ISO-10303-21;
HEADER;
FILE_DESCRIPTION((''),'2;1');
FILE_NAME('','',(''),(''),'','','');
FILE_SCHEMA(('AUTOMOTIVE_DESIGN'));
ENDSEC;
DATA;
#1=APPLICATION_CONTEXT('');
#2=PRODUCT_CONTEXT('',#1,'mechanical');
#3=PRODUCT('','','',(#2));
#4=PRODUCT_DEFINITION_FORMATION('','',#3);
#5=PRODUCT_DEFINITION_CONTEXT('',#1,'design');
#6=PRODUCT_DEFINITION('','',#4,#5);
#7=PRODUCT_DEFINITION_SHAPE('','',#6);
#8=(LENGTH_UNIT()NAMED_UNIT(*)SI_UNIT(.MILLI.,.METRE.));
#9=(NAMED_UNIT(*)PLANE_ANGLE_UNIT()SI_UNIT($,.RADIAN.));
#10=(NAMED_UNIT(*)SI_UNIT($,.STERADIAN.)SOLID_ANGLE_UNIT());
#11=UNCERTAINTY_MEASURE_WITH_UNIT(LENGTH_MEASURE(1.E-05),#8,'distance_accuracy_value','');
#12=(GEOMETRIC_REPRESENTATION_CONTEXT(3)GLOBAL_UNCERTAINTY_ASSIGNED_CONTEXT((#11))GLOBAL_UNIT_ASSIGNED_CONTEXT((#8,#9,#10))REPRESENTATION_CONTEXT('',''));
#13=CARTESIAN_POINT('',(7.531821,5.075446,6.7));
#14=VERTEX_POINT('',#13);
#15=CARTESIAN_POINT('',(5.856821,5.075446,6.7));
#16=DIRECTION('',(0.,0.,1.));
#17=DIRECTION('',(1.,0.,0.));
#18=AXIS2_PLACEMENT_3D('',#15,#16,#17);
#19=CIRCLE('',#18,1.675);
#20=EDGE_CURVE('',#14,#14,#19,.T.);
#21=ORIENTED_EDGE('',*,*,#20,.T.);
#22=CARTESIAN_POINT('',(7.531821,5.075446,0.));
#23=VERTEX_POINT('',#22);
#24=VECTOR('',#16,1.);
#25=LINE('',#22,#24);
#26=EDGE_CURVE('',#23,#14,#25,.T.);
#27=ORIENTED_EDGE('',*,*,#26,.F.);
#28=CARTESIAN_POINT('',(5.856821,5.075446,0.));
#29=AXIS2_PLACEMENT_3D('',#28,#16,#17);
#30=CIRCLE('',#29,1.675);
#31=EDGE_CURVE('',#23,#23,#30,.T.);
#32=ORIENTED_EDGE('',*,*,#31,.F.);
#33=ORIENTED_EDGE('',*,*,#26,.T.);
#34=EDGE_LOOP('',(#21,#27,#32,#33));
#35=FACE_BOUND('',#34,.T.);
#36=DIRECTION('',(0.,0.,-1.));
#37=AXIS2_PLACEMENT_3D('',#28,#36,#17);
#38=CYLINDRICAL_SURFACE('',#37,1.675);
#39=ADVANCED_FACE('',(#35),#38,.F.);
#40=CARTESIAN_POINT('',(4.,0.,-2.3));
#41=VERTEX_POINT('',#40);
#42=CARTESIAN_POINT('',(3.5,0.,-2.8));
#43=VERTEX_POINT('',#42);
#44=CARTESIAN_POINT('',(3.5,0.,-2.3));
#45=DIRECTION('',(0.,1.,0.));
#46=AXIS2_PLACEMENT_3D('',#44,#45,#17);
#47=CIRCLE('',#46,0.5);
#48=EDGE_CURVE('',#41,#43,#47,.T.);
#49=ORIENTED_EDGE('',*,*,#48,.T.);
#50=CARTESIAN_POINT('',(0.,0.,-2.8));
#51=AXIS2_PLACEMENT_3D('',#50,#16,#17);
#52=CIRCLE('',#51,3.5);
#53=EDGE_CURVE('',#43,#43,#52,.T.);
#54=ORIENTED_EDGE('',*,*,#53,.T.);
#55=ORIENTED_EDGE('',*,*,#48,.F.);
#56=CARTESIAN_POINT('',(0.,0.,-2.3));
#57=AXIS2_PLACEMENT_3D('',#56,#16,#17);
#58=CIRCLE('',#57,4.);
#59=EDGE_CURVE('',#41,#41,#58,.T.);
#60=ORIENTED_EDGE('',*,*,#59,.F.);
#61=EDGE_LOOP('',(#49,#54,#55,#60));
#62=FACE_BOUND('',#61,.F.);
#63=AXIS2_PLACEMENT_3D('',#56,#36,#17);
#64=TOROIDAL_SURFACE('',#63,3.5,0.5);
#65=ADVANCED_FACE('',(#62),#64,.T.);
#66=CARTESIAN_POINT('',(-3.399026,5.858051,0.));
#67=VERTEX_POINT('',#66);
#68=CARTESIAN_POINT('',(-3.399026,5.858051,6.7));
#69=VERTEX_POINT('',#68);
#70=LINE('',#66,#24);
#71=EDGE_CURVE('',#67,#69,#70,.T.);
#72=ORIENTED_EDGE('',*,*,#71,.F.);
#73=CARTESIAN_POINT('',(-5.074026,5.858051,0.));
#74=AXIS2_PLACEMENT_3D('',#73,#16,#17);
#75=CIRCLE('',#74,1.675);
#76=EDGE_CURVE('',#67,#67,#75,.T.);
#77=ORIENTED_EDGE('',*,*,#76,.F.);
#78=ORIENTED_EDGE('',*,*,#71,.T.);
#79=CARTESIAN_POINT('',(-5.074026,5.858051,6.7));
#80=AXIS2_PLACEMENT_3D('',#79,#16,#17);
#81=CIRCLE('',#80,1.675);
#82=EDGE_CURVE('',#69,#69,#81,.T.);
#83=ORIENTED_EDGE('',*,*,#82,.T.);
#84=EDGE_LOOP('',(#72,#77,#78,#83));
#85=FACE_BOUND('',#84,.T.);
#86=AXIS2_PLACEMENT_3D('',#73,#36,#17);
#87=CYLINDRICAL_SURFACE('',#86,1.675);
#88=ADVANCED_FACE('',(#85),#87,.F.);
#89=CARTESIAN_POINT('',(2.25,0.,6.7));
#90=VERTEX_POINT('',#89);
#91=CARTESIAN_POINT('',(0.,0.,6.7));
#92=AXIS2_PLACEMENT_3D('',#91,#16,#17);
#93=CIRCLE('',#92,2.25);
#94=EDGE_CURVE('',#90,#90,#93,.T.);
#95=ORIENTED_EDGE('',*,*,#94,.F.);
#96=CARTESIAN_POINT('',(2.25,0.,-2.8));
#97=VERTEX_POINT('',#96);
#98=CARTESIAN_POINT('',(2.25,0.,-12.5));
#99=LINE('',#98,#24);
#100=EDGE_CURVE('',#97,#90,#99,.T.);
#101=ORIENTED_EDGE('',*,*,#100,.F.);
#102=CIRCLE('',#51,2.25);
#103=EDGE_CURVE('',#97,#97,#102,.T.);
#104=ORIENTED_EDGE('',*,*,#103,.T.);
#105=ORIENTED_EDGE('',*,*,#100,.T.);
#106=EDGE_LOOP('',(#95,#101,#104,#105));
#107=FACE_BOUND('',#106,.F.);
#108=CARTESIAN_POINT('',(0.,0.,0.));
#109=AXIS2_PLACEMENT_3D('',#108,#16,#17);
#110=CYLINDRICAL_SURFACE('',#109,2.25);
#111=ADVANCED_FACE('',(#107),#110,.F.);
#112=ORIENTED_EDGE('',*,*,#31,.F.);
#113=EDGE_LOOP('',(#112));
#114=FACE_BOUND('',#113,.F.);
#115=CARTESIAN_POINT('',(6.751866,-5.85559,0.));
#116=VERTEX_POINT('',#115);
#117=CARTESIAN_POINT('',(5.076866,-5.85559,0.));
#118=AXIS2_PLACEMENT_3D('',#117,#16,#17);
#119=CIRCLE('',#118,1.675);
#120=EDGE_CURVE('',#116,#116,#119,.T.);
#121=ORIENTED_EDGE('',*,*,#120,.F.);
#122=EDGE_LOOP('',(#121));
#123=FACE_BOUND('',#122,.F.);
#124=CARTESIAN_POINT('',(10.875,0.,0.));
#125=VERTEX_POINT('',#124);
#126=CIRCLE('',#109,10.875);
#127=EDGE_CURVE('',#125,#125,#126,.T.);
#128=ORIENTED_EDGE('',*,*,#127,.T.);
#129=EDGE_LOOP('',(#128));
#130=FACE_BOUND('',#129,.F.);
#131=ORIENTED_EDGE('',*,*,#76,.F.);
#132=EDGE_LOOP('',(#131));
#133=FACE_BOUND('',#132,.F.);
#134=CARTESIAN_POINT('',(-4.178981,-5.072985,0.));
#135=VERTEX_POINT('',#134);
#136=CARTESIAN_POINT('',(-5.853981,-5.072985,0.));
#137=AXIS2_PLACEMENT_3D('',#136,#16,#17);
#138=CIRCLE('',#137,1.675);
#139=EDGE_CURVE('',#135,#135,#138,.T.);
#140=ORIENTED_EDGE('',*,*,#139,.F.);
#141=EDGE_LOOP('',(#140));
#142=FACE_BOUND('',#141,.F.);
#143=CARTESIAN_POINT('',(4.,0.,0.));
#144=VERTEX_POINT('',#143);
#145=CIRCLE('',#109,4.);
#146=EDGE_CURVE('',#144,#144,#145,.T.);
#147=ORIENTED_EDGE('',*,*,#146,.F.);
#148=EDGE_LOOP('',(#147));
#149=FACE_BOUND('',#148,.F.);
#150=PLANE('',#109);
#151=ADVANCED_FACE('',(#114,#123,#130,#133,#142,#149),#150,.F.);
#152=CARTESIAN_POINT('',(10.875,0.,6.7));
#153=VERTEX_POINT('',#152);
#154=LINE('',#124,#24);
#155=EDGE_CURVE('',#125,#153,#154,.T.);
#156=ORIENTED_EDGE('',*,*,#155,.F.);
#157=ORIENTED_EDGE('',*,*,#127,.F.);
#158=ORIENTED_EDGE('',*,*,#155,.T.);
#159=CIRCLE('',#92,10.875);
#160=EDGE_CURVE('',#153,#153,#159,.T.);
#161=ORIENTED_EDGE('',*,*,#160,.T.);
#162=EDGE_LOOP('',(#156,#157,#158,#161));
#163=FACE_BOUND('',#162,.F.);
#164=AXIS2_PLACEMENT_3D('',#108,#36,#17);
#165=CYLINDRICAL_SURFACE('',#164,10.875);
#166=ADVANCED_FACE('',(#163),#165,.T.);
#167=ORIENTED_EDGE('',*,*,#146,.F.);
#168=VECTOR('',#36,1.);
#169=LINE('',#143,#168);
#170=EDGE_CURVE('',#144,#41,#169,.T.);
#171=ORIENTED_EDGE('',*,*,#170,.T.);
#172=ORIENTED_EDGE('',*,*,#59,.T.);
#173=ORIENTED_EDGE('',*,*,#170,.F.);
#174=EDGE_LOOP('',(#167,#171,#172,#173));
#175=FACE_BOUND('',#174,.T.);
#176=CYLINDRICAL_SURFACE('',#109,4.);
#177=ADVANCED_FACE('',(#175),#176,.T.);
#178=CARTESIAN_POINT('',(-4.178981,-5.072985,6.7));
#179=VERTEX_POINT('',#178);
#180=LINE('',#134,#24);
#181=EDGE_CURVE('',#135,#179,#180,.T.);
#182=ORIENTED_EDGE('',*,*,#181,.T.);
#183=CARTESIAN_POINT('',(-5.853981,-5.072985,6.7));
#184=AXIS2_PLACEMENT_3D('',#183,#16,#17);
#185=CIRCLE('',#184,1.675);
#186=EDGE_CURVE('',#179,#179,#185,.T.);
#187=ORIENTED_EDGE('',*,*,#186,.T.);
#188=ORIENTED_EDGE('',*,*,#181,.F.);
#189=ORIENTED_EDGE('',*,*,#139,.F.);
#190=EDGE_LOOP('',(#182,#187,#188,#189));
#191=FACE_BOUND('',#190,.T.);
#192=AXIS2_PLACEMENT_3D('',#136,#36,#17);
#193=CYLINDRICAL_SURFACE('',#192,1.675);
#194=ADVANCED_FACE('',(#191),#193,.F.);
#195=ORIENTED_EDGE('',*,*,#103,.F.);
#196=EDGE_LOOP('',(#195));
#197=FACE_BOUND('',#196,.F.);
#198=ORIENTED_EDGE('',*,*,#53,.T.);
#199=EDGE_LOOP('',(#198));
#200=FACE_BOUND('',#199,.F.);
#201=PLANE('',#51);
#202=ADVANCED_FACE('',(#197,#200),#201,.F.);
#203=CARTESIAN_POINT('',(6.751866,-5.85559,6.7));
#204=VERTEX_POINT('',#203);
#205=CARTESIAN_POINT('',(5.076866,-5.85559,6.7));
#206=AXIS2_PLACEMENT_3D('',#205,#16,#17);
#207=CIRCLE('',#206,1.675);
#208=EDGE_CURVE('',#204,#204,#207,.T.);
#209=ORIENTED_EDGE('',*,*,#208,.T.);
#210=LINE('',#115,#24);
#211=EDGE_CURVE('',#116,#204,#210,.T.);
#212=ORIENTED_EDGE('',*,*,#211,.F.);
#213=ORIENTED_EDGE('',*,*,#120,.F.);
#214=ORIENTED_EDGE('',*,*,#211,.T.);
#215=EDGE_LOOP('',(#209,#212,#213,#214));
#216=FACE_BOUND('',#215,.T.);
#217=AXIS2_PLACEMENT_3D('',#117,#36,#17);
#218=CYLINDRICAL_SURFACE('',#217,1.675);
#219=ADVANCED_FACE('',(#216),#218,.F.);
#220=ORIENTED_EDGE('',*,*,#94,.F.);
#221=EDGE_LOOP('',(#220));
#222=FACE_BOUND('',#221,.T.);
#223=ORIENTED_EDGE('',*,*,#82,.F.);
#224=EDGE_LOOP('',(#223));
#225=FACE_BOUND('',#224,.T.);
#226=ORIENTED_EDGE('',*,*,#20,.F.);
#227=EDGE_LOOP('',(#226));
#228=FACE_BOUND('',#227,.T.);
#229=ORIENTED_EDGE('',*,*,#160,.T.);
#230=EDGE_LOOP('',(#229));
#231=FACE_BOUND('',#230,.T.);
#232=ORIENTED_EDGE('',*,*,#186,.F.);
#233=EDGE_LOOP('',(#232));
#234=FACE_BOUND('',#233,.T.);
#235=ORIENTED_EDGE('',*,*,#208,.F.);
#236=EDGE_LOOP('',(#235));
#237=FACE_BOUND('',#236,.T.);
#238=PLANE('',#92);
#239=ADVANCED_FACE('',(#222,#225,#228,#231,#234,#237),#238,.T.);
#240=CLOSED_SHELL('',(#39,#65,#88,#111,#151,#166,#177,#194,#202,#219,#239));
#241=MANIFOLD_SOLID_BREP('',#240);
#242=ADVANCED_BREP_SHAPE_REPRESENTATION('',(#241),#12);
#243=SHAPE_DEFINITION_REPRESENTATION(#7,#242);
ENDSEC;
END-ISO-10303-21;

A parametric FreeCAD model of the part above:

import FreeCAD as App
import Part
import Sketcher

V = App.Vector


def edges_at(feature, points):
    """Names of the edges that pass closest to the given points."""
    edges = feature.Shape.Edges
    near = lambda p: min(range(len(edges)), key=lambda i: edges[i].distToShape(Part.Vertex(*p))[0])
    return sorted({f"Edge{near(p) + 1}" for p in points})

doc = App.newDocument("Part")
body = doc.addObject("PartDesign::Body", "Body")

# Sketch on XY plane
sketch1 = doc.addObject("Sketcher::SketchObject", "Sketch")
body.addObject(sketch1)
sketch1.AttachmentSupport = (doc.XY_Plane, [""])
sketch1.MapMode = "FlatFace"
sketch1.addGeometry(Part.Circle(V(0, 0, 0), V(0, 0, 1), 10.9), False)
sketch1.addGeometry(Part.Circle(V(-5.9, -5.1, 0), V(0, 0, 1), 1.7), False)
sketch1.addGeometry(Part.Circle(V(5.1, -5.9, 0), V(0, 0, 1), 1.7), False)
sketch1.addGeometry(Part.Circle(V(-5.1, 5.9, 0), V(0, 0, 1), 1.7), False)
sketch1.addGeometry(Part.Circle(V(5.9, 5.1, 0), V(0, 0, 1), 1.7), False)
sketch1.addConstraint(Sketcher.Constraint("Coincident", 0, 3, -1, 1))
sketch1.addConstraint(Sketcher.Constraint("Equal", 1, 2))
sketch1.addConstraint(Sketcher.Constraint("Equal", 2, 3))
sketch1.addConstraint(Sketcher.Constraint("Equal", 3, 4))
sketch1.addConstraint(Sketcher.Constraint("Diameter", 0, 21.75))
sketch1.addConstraint(Sketcher.Constraint("Diameter", 1, 3.35))
sketch1.addConstraint(Sketcher.Constraint("DistanceX", 1, 3, -1, 1, 5.853981))
sketch1.addConstraint(Sketcher.Constraint("DistanceY", 2, 3, -1, 1, 5.85559))
sketch1.addConstraint(Sketcher.Constraint("DistanceY", -1, 1, 3, 3, 5.858051))
sketch1.addConstraint(Sketcher.Constraint("DistanceX", -1, 1, 4, 3, 5.856821))
sketch1.addConstraint(Sketcher.Constraint("DistanceX", 3, 3, 2, 3, 10.150892))
sketch1.addConstraint(Sketcher.Constraint("DistanceY", 1, 3, 4, 3, 10.148431))
sketch1.addConstraint(Sketcher.Constraint("DistanceY", 1, 3, -1, 1, 5.072985))
sketch1.addConstraint(Sketcher.Constraint("DistanceX", -1, 1, 2, 3, 5.076866))
pad1 = doc.addObject("PartDesign::Pad", "Pad")
body.addObject(pad1)
pad1.Profile = sketch1
pad1.Length = 6.7

# Sketch on XY plane
sketch2 = doc.addObject("Sketcher::SketchObject", "Sketch001")
body.addObject(sketch2)
sketch2.AttachmentSupport = (doc.XY_Plane, [""])
sketch2.MapMode = "FlatFace"
sketch2.addGeometry(Part.Circle(V(0, 0, 0), V(0, 0, 1), 4), False)
sketch2.addConstraint(Sketcher.Constraint("Coincident", 0, 3, -1, 1))
sketch2.addConstraint(Sketcher.Constraint("Diameter", 0, 8.0))
pad2 = doc.addObject("PartDesign::Pad", "Pad001")
body.addObject(pad2)
pad2.Profile = sketch2
pad2.Length = 2.8
pad2.Reversed = True

# Sketch on XY plane
sketch3 = doc.addObject("Sketcher::SketchObject", "Sketch002")
body.addObject(sketch3)
sketch3.AttachmentSupport = (doc.XY_Plane, [""])
sketch3.MapMode = "FlatFace"
sketch3.addGeometry(Part.Circle(V(0, 0, 0), V(0, 0, 1), 2.2), False)
sketch3.addConstraint(Sketcher.Constraint("Coincident", 0, 3, -1, 1))
sketch3.addConstraint(Sketcher.Constraint("Diameter", 0, 4.5))
pocket1 = doc.addObject("PartDesign::Pocket", "Pocket")
body.addObject(pocket1)
pocket1.Profile = sketch3
pocket1.Length = 25
pocket1.Midplane = True
doc.recompute()

fillet = doc.addObject("PartDesign::Fillet", "Fillet")
body.addObject(fillet)
fillet.Base = (pocket1, edges_at(pocket1, [(-4, 0, -2.8)]))
fillet.Radius = 0.5

doc.recompute()
